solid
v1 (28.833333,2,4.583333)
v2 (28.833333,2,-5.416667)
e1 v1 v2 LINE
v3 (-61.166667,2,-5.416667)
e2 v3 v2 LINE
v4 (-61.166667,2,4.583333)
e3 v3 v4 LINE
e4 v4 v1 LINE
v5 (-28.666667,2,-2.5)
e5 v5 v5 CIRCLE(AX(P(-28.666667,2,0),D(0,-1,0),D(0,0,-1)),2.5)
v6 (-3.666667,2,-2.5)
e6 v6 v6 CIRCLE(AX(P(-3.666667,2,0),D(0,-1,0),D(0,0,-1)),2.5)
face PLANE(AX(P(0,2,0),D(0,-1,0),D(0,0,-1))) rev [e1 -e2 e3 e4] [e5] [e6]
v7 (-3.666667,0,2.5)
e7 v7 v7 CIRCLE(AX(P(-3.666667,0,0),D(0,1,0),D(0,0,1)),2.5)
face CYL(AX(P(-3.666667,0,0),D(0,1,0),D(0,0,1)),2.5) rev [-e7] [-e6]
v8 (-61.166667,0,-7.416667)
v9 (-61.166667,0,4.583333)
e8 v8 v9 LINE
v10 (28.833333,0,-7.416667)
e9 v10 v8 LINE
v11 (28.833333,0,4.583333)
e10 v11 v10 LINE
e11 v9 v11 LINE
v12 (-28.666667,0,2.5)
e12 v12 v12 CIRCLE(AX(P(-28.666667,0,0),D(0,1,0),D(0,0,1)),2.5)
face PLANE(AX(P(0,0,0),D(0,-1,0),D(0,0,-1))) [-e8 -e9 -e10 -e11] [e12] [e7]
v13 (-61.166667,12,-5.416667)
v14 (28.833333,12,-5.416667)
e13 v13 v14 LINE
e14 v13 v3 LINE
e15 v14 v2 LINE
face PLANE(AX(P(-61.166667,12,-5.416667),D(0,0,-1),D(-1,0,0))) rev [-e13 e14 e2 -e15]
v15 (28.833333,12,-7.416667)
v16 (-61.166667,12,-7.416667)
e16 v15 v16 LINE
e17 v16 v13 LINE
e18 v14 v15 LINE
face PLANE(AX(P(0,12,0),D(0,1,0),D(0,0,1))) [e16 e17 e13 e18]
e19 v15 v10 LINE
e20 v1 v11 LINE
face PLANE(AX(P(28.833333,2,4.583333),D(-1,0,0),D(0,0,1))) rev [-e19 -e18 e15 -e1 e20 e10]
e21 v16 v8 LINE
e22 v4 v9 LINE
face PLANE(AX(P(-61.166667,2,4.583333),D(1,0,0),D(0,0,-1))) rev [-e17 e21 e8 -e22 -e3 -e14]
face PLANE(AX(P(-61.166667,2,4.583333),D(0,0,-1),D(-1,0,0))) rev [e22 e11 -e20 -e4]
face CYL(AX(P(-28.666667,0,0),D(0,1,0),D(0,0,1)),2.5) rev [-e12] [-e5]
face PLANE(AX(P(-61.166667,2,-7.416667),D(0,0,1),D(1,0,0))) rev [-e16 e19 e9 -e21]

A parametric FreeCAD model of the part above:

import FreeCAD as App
import Part
import Sketcher


def add_polygon(sketch, points):
    """Adds a closed chain of lines whose ends are joined by coincident constraints."""
    first, n = sketch.GeometryCount, len(points)
    for a, b in zip(points, points[1:] + points[:1]):
        sketch.addGeometry(Part.LineSegment(App.Vector(*a, 0), App.Vector(*b, 0)), False)
    for i in range(n):
        sketch.addConstraint(Sketcher.Constraint("Coincident", first + i, 2, first + (i + 1) % n, 1))

doc = App.newDocument("Part")
params = doc.addObject("Spreadsheet::Sheet", "Params")
for row, (alias, value) in enumerate([
    ("sketch1_width", "90 mm"),
    ("sketch1_height", "12 mm"),
    ("pad1_length", "2 mm"),
    ("sketch2_width", "90 mm"),
    ("sketch2_height", "2 mm"),
    ("pad2_length", "10 mm"),
    ("sketch3_diameter", "5 mm"),
], start=1):
    params.set(f"A{row}", alias)
    params.set(f"B{row}", "=" + value)
    params.setAlias(f"B{row}", alias)

body = doc.addObject("PartDesign::Body", "Body")

# Sketch on XZ plane
sketch1 = doc.addObject("Sketcher::SketchObject", "Sketch")
body.addObject(sketch1)
sketch1.AttachmentSupport = (doc.XZ_Plane, [""])
sketch1.MapMode = "FlatFace"
add_polygon(sketch1, [(-61, -7), (-61, 5), (29, 5), (29, -7)])  # lines 0-3
sketch1.addConstraint([
    Sketcher.Constraint("Vertical", 0),
    Sketcher.Constraint("Horizontal", 1),
    Sketcher.Constraint("Vertical", 2),
    Sketcher.Constraint("Horizontal", 3),
    Sketcher.Constraint("DistanceX", 1, 1, 1, 2, 90.0),
    Sketcher.Constraint("DistanceY", 0, 1, 0, 2, 12.0),
    Sketcher.Constraint("DistanceX", 0, 2, -1, 1, 61.166667),
    Sketcher.Constraint("DistanceY", -1, 1, 0, 2, 4.583333),
])
sketch1.setExpression("Constraints[8]", "Params.sketch1_width")
sketch1.setExpression("Constraints[9]", "Params.sketch1_height")
pad1 = doc.addObject("PartDesign::Pad", "Pad")
body.addObject(pad1)
pad1.Profile = sketch1
pad1.setExpression("Length", "Params.pad1_length")
pad1.Reversed = True

# Sketch on XZ plane
sketch2 = doc.addObject("Sketcher::SketchObject", "Sketch001")
body.addObject(sketch2)
sketch2.AttachmentSupport = (doc.XZ_Plane, [""])
sketch2.MapMode = "FlatFace"
sketch2.AttachmentOffset = App.Placement(App.Vector(0, 0, -2), App.Rotation())
add_polygon(sketch2, [(-61.2, -7.4), (-61.2, -5.4), (28.8, -5.4), (28.8, -7.4)])  # lines 0-3
sketch2.addConstraint([
    Sketcher.Constraint("Vertical", 0),
    Sketcher.Constraint("Horizontal", 1),
    Sketcher.Constraint("Vertical", 2),
    Sketcher.Constraint("Horizontal", 3),
    Sketcher.Constraint("DistanceX", 1, 1, 1, 2, 90.0),
    Sketcher.Constraint("DistanceY", 0, 1, 0, 2, 2.0),
    Sketcher.Constraint("DistanceX", 0, 2, -1, 1, 61.166667),
    Sketcher.Constraint("DistanceY", 0, 2, -1, 1, 5.416667),
])
sketch2.setExpression("Constraints[8]", "Params.sketch2_width")
sketch2.setExpression("Constraints[9]", "Params.sketch2_height")
pad2 = doc.addObject("PartDesign::Pad", "Pad001")
body.addObject(pad2)
pad2.Profile = sketch2
pad2.setExpression("Length", "Params.pad2_length")
pad2.Reversed = True

# Sketch on XZ plane
sketch3 = doc.addObject("Sketcher::SketchObject", "Sketch002")
body.addObject(sketch3)
sketch3.AttachmentSupport = (doc.XZ_Plane, [""])
sketch3.MapMode = "FlatFace"
sketch3.AttachmentOffset = App.Placement(App.Vector(0, 0, -2), App.Rotation())
sketch3.addGeometry([
    Part.Circle(App.Vector(-28.7, 0, 0), App.Vector(0, 0, 1), 2.5),
    Part.Circle(App.Vector(-3.7, 0, 0), App.Vector(0, 0, 1), 2.5),
], False)
sketch3.addConstraint([
    Sketcher.Constraint("Equal", 0, 1),
    Sketcher.Constraint("PointOnObject", 0, 3, -1),
    Sketcher.Constraint("PointOnObject", 1, 3, -1),
    Sketcher.Constraint("Diameter", 0, 5.0),
    Sketcher.Constraint("DistanceX", 0, 3, 1, 3, 25.0),
    Sketcher.Constraint("DistanceX", 0, 3, -1, 1, 28.666667),
])
sketch3.setExpression("Constraints[3]", "Params.sketch3_diameter")
pocket1 = doc.addObject("PartDesign::Pocket", "Pocket")
body.addObject(pocket1)
pocket1.Profile = sketch3
pocket1.Type = "ThroughAll"
pocket1.Midplane = True

doc.recompute()
